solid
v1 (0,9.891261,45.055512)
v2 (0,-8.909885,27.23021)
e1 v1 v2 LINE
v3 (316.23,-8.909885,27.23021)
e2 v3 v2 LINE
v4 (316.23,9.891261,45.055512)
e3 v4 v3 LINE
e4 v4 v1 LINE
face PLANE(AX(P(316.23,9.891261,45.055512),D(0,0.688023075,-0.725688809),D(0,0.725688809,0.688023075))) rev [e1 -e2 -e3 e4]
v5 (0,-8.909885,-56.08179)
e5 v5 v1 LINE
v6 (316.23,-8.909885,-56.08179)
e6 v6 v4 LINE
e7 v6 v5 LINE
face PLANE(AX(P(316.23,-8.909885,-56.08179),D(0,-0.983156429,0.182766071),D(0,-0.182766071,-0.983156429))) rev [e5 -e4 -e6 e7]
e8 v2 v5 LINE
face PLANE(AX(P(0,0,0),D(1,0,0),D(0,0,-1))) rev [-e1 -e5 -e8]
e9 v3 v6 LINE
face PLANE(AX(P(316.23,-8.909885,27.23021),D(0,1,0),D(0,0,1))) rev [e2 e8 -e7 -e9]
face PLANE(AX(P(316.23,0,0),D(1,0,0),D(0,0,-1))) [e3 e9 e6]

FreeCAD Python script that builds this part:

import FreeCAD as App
import Part
import Sketcher
from FreeCAD import Vector
Q = App.Units.Quantity


def add_polygon(sketch, points):
    """Adds a closed chain of lines whose ends are joined by coincident constraints."""
    first, n = sketch.GeometryCount, len(points)
    for a, b in zip(points, points[1:] + points[:1]):
        sketch.addGeometry(Part.LineSegment(App.Vector(*a, 0), App.Vector(*b, 0)), False)
    for i in range(n):
        sketch.addConstraint(Sketcher.Constraint("Coincident", first + i, 2, first + (i + 1) % n, 1))

doc = App.newDocument("Part")
body = doc.addObject("PartDesign::Body", "Body")

sketch1 = body.newObject("Sketcher::SketchObject", "Sketch")
sketch1.AttachmentSupport = (doc.getObject("YZ_Plane"), [""])
sketch1.MapMode = "FlatFace"
add_polygon(sketch1, [(10, 45), (-9, 27), (-9, -56)])
sketch1.addConstraint(Sketcher.Constraint("Vertical", 1))
sketch1.addConstraint(Sketcher.Constraint("DistanceY", 1, 2, 1, 1, Q("3.28 in")))
sketch1.addConstraint(Sketcher.Constraint("Distance", 0, Q("1.02 in")))
sketch1.addConstraint(Sketcher.Constraint("Distance", 2, Q("4.05 in")))
sketch1.addConstraint(Sketcher.Constraint("DistanceY", -1, 1, 0, 2, Q("27.23021 mm")))
sketch1.addConstraint(Sketcher.Constraint("DistanceX", -1, 1, 2, 2, Q("9.891261 mm")))
pad1 = body.newObject("PartDesign::Pad", "Pad")
pad1.Profile = sketch1
pad1.Length = Q("12.45 in")

doc.recompute()
